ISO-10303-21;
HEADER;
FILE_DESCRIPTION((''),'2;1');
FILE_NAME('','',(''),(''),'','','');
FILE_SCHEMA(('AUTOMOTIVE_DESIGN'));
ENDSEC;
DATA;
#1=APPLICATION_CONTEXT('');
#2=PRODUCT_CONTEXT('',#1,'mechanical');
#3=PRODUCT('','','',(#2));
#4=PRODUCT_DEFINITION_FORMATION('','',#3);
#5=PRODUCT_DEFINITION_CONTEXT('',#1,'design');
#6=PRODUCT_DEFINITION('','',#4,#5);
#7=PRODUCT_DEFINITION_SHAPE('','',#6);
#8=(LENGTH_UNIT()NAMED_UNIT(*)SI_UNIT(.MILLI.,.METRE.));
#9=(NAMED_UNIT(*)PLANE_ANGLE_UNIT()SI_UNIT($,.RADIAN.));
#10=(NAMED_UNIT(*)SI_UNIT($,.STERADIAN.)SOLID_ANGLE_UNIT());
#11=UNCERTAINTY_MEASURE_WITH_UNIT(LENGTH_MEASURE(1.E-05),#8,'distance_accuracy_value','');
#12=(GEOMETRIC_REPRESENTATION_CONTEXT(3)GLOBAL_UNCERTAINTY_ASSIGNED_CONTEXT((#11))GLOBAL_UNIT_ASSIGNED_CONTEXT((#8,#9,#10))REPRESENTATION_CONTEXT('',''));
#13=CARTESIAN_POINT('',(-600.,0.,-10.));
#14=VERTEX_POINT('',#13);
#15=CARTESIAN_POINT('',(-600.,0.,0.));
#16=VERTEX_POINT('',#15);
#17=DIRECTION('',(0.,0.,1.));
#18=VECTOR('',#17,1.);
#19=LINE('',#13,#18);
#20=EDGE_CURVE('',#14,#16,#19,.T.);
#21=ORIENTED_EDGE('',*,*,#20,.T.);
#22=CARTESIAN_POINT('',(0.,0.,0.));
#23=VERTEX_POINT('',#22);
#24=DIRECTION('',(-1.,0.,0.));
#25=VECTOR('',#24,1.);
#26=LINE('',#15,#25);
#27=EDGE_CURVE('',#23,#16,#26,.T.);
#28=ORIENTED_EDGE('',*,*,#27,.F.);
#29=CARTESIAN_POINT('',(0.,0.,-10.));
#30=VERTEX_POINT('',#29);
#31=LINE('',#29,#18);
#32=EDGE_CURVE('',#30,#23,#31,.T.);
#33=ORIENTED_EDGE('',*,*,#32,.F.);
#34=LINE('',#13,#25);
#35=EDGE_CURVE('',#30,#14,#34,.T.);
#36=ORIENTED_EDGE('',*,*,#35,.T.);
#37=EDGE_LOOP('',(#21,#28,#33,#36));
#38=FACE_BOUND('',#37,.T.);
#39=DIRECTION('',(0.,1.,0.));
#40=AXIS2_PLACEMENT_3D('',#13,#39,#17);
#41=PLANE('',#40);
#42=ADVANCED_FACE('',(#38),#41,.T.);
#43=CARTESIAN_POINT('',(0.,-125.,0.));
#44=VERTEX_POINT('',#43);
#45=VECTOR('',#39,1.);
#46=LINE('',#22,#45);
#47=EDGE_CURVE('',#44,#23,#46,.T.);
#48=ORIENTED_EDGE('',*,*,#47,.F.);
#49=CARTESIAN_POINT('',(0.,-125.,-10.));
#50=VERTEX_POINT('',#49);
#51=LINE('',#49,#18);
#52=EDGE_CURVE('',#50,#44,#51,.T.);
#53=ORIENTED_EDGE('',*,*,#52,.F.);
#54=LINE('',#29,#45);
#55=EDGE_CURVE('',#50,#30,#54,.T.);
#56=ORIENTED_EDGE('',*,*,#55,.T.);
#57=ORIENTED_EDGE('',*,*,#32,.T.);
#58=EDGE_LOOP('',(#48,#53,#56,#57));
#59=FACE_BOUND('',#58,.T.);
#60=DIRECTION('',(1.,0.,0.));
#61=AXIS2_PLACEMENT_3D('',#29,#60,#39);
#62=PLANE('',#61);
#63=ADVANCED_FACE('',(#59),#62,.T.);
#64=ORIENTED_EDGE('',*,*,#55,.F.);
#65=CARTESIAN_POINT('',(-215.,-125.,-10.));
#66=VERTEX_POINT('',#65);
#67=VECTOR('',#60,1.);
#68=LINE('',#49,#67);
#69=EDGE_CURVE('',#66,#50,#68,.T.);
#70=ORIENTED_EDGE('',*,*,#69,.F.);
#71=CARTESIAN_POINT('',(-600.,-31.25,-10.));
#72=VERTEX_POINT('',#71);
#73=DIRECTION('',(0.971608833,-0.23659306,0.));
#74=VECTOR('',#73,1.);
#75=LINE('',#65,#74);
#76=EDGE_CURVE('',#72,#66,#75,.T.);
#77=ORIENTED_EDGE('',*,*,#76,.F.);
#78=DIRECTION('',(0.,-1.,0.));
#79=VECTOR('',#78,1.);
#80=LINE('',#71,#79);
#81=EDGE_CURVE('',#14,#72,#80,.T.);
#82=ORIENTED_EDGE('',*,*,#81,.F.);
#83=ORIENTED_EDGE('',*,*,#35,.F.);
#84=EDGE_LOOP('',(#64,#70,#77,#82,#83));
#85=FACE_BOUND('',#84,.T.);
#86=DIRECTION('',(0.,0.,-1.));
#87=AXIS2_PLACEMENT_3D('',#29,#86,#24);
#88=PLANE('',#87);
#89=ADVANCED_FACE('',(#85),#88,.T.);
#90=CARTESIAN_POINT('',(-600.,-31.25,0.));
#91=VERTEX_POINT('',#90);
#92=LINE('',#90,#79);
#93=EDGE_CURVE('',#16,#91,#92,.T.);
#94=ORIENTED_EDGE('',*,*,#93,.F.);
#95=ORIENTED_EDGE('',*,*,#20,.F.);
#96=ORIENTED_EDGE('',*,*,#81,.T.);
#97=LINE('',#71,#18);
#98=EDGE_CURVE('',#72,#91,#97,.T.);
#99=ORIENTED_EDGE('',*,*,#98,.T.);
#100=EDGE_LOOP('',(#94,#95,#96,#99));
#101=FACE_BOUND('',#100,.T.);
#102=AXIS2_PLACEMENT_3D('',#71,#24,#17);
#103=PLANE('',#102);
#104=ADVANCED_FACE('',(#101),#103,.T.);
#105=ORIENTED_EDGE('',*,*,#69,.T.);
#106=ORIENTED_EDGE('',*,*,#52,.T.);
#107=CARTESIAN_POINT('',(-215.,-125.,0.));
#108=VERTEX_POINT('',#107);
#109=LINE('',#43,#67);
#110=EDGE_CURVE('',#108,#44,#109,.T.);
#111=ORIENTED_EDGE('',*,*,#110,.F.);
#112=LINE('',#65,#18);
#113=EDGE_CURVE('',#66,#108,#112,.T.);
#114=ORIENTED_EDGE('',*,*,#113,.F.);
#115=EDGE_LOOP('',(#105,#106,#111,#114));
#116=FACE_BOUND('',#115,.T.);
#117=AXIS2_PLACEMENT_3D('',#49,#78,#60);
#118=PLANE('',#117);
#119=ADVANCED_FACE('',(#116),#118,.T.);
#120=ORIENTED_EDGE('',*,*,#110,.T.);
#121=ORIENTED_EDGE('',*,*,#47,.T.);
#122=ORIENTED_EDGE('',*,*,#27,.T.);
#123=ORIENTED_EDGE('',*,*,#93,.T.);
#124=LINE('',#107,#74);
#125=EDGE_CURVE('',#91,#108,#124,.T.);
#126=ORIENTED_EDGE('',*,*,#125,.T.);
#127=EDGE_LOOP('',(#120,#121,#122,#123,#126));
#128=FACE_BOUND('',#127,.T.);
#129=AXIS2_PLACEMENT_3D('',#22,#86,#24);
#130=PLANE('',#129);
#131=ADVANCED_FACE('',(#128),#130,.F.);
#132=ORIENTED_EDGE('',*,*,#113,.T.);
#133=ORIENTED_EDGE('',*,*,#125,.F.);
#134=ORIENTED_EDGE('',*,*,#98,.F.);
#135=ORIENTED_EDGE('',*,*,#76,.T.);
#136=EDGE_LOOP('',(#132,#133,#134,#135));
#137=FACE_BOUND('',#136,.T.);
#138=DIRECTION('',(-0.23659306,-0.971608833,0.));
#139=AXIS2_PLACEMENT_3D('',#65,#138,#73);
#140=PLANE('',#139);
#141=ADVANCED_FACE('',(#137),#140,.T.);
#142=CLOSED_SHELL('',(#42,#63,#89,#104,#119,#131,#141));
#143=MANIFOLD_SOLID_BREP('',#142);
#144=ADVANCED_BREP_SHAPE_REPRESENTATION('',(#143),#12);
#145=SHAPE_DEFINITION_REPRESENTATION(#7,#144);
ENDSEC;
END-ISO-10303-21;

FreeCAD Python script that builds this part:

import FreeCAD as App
import Part
import Sketcher
Q = App.Units.Quantity

doc = App.newDocument("Part")
params = doc.addObject("Spreadsheet::Sheet", "Params")
for row, (alias, value) in enumerate([
    ("sketch1_width", "600 mm"),
    ("sketch1_width2", "215 mm"),
    ("sketch1_height", "125 mm"),
    ("sketch1_height2", "31.25 mm"),
    ("pad1_length", "10 mm"),
], start=1):
    params.set(f"A{row}", alias)
    params.set(f"B{row}", "=" + value)
    params.setAlias(f"B{row}", alias)

body = doc.addObject("PartDesign::Body", "Body")

# Sketch on XY plane
sketch1 = body.newObject("Sketcher::SketchObject", "Sketch")
sketch1.AttachmentSupport = (doc.getObject("XY_Plane"), [""])
sketch1.MapMode = "FlatFace"
sketch1.addGeometry(Part.LineSegment(App.Vector(0, 0, 0), App.Vector(-600, 0, 0)), False)
sketch1.addGeometry(Part.LineSegment(App.Vector(-600, 0, 0), App.Vector(-600, -31, 0)), False)
sketch1.addGeometry(Part.LineSegment(App.Vector(-600, -31, 0), App.Vector(-215, -125, 0)), False)
sketch1.addGeometry(Part.LineSegment(App.Vector(-215, -125, 0), App.Vector(0, -125, 0)), False)
sketch1.addGeometry(Part.LineSegment(App.Vector(0, -125, 0), App.Vector(0, 0, 0)), False)
sketch1.addConstraint(Sketcher.Constraint("Coincident", 0, 2, 1, 1))
sketch1.addConstraint(Sketcher.Constraint("Coincident", 1, 2, 2, 1))
sketch1.addConstraint(Sketcher.Constraint("Coincident", 2, 2, 3, 1))
sketch1.addConstraint(Sketcher.Constraint("Coincident", 3, 2, 4, 1))
sketch1.addConstraint(Sketcher.Constraint("Coincident", 4, 2, 0, 1))
sketch1.addConstraint(Sketcher.Constraint("Horizontal", 0))
sketch1.addConstraint(Sketcher.Constraint("Vertical", 1))
sketch1.addConstraint(Sketcher.Constraint("Horizontal", 3))
sketch1.addConstraint(Sketcher.Constraint("Vertical", 4))
sketch1.addConstraint(Sketcher.Constraint("Coincident", 4, 2, -1, 1))
sketch1.addConstraint(Sketcher.Constraint("DistanceX", 0, 2, 0, 1, Q("600 mm")))
sketch1.addConstraint(Sketcher.Constraint("DistanceX", 3, 1, 3, 2, Q("215 mm")))
sketch1.addConstraint(Sketcher.Constraint("DistanceY", 4, 1, 4, 2, Q("125 mm")))
sketch1.addConstraint(Sketcher.Constraint("DistanceY", 1, 2, 1, 1, Q("31.25 mm")))
sketch1.setExpression("Constraints[10]", "Params.sketch1_width")
sketch1.setExpression("Constraints[11]", "Params.sketch1_width2")
sketch1.setExpression("Constraints[12]", "Params.sketch1_height")
sketch1.setExpression("Constraints[13]", "Params.sketch1_height2")
pad1 = body.newObject("PartDesign::Pad", "Pad")
pad1.Profile = sketch1
pad1.setExpression("Length", "Params.pad1_length")
pad1.Reversed = True

doc.recompute()
